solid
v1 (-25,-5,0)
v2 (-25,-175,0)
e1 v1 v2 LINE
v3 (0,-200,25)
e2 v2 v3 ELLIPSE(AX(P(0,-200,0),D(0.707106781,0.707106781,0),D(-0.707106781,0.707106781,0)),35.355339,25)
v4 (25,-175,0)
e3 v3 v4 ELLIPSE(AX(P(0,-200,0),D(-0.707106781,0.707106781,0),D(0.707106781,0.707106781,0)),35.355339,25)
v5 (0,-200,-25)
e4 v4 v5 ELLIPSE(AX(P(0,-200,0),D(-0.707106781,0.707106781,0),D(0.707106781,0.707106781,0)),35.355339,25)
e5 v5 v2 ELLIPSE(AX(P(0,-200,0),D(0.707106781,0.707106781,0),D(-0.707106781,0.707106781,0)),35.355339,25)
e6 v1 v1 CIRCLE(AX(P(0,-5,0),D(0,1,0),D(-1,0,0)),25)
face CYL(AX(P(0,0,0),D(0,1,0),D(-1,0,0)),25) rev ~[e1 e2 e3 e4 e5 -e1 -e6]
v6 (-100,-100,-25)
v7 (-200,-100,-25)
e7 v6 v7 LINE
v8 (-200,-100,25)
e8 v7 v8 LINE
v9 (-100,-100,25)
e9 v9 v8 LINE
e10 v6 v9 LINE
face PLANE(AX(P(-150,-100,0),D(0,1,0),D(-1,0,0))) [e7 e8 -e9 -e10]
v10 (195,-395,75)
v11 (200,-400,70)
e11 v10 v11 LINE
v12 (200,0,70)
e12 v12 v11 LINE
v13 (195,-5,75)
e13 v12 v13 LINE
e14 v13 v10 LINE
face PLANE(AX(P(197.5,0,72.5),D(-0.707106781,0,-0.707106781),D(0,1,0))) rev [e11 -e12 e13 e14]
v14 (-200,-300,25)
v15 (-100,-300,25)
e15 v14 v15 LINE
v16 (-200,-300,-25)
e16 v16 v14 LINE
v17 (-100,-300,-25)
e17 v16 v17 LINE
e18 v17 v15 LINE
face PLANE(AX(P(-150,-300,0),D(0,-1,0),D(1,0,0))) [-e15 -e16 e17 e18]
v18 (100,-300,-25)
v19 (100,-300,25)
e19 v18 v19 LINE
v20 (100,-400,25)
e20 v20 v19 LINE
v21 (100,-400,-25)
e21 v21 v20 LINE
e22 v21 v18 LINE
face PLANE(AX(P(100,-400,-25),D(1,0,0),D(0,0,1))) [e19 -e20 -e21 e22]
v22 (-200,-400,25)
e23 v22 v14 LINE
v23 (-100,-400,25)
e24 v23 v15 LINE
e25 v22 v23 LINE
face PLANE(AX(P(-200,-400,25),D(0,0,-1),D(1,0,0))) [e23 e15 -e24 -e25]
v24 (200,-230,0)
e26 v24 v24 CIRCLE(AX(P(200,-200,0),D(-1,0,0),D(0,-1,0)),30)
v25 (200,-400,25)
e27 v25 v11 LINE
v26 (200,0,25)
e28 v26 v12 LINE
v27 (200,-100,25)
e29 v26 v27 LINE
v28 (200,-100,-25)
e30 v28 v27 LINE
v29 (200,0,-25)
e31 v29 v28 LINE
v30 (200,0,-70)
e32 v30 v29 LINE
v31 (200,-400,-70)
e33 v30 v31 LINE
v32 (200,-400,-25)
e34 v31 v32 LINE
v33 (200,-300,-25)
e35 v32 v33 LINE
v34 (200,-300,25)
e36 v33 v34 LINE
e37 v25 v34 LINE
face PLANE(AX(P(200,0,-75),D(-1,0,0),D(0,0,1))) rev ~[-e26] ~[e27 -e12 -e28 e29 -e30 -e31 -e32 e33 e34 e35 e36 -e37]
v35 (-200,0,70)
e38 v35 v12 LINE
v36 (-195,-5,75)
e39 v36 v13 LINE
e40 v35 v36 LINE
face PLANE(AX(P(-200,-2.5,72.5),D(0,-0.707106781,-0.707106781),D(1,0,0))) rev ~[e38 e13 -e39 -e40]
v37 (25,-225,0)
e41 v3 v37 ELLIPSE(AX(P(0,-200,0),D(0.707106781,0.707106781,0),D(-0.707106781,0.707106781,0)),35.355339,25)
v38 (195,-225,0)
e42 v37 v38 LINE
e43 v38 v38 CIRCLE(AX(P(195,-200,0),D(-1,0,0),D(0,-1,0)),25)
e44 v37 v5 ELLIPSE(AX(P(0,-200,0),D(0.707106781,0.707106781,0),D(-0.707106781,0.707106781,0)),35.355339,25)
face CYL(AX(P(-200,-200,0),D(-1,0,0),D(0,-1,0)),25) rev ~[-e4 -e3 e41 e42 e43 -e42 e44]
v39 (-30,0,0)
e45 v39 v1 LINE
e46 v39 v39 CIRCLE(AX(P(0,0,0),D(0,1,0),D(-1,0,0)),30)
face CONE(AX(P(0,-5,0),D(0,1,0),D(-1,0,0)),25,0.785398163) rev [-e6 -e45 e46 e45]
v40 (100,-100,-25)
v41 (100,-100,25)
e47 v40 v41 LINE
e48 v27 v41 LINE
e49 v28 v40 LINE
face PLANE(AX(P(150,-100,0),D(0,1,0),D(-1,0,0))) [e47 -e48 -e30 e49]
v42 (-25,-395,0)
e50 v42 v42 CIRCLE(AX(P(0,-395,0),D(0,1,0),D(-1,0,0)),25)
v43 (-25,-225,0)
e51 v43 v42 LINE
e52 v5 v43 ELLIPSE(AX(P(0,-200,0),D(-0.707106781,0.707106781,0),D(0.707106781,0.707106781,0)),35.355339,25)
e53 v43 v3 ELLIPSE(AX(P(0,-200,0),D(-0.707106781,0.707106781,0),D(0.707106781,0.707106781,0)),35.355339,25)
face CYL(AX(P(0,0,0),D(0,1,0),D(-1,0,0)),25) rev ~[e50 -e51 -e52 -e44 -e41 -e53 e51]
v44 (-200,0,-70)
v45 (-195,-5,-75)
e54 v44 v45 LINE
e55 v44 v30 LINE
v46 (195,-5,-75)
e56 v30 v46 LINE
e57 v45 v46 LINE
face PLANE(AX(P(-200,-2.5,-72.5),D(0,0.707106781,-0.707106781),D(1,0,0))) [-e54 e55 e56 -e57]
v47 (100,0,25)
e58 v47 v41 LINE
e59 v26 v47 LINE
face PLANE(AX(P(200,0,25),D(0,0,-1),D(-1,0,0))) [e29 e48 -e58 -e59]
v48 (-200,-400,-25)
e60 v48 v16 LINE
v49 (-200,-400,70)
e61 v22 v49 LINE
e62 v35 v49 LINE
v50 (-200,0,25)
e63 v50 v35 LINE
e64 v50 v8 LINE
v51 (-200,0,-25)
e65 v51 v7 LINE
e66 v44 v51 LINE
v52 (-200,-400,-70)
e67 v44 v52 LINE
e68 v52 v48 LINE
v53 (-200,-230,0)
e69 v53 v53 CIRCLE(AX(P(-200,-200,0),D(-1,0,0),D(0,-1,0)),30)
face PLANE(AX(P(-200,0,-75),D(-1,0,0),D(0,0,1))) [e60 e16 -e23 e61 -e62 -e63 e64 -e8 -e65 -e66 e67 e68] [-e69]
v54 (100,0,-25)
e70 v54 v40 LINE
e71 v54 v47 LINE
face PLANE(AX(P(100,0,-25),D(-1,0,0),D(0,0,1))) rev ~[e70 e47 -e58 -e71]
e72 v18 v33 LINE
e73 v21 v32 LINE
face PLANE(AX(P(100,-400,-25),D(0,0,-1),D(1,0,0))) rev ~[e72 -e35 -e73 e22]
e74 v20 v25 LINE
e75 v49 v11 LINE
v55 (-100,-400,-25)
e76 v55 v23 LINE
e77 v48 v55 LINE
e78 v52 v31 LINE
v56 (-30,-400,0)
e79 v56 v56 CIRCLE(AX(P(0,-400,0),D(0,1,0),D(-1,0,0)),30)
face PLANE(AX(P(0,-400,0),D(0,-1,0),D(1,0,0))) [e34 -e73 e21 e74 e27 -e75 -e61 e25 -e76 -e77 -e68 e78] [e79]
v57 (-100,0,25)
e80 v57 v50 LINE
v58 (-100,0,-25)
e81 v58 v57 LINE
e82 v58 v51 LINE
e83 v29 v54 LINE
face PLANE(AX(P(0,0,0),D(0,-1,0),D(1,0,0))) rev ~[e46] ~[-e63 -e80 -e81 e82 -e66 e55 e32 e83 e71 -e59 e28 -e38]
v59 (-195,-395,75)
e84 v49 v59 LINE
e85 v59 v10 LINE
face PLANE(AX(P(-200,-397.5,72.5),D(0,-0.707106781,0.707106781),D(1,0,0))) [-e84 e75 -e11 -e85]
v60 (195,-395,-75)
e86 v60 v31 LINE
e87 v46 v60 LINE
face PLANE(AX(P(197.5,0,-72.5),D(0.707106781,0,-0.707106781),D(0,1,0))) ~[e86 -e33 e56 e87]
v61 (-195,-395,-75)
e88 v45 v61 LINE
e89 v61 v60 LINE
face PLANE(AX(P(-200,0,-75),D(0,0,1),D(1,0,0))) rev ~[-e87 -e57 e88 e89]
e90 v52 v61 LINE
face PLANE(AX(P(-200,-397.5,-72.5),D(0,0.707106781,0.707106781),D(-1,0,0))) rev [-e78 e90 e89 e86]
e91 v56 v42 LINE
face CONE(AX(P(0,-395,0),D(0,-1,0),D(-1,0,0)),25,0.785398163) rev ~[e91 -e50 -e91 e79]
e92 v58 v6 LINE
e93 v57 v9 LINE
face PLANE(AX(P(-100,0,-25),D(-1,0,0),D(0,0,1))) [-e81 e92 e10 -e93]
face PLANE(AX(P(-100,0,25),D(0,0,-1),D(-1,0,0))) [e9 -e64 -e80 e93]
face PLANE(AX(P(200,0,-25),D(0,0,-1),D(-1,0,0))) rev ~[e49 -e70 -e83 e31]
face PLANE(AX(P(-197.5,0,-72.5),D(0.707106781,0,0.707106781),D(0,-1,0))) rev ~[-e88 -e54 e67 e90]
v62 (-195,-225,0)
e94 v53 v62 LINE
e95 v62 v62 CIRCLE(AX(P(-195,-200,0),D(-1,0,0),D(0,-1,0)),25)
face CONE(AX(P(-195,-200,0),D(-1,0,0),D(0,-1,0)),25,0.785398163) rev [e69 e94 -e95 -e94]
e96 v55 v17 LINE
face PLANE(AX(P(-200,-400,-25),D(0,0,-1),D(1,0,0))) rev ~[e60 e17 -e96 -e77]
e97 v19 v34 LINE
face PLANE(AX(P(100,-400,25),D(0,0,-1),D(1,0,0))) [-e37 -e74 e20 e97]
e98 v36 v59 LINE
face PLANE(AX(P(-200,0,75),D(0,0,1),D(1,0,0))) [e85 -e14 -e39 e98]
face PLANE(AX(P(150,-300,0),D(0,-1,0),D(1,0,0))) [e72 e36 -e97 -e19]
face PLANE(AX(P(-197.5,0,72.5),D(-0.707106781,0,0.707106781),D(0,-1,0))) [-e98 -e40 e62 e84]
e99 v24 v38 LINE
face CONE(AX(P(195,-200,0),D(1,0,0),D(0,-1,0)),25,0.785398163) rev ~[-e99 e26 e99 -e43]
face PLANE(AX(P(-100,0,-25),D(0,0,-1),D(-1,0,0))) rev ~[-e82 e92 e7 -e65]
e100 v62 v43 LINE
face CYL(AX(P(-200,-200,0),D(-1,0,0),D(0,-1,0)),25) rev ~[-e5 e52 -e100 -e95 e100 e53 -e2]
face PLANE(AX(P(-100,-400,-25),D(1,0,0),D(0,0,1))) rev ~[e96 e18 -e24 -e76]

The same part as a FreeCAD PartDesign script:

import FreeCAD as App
import Part
import Sketcher

V = App.Vector


def edges_at(feature, points):
    """Names of the edges that pass closest to the given points."""
    edges = feature.Shape.Edges
    near = lambda p: min(range(len(edges)), key=lambda i: edges[i].distToShape(Part.Vertex(*p))[0])
    return sorted({f"Edge{near(p) + 1}" for p in points})


def add_polygon(sketch, points):
    """Adds a closed chain of lines whose ends are joined by coincident constraints."""
    first, n = sketch.GeometryCount, len(points)
    for a, b in zip(points, points[1:] + points[:1]):
        sketch.addGeometry(Part.LineSegment(App.Vector(*a, 0), App.Vector(*b, 0)), False)
    for i in range(n):
        sketch.addConstraint(Sketcher.Constraint("Coincident", first + i, 2, first + (i + 1) % n, 1))

doc = App.newDocument("Part")
body = doc.addObject("PartDesign::Body", "Body")

sketch1 = doc.addObject("Sketcher::SketchObject", "Sketch")
body.addObject(sketch1)
sketch1.AttachmentSupport = (doc.XZ_Plane, [""])
sketch1.MapMode = "FlatFace"
add_polygon(sketch1, [(-200, 75), (-200, -75), (200, -75), (200, 75)])
sketch1.addConstraint([
    Sketcher.Constraint("Vertical", 0),
    Sketcher.Constraint("Horizontal", 1),
    Sketcher.Constraint("Vertical", 2),
    Sketcher.Constraint("Horizontal", 3),
    Sketcher.Constraint("Symmetric", 0, 2, 2, 2, -1, 1),
    Sketcher.Constraint("DistanceX", 1, 1, 1, 2, 400.0),
    Sketcher.Constraint("DistanceY", 0, 2, 0, 1, 150.0),
])
pad1 = doc.addObject("PartDesign::Pad", "Pad")
body.addObject(pad1)
pad1.Profile = sketch1
pad1.Length = 400

sketch2 = doc.addObject("Sketcher::SketchObject", "Sketch001")
body.addObject(sketch2)
sketch2.AttachmentSupport = (doc.XZ_Plane, [""])
sketch2.MapMode = "FlatFace"
sketch2.AttachmentOffset = App.Placement(V(0, 0, 400), App.Rotation())
add_polygon(sketch2, [(100, 25), (100, -25), (200, -25), (200, 25)])
add_polygon(sketch2, [(-200, 25), (-200, -25), (-100, -25), (-100, 25)])
sketch2.addConstraint([
    Sketcher.Constraint("Vertical", 0),
    Sketcher.Constraint("Horizontal", 1),
    Sketcher.Constraint("Vertical", 2),
    Sketcher.Constraint("Horizontal", 3),
    Sketcher.Constraint("Vertical", 4),
    Sketcher.Constraint("Horizontal", 5),
    Sketcher.Constraint("Vertical", 6),
    Sketcher.Constraint("Horizontal", 7),
    Sketcher.Constraint("Symmetric", 2, 2, 4, 2, -1, 1),
    Sketcher.Constraint("Symmetric", 0, 2, 6, 2, -1, 1),
    Sketcher.Constraint("Horizontal", 1, 2, 4, 2),
    Sketcher.Constraint("DistanceX", 1, 1, 1, 2, 100.0),
    Sketcher.Constraint("DistanceY", 0, 2, 0, 1, 50.0),
    Sketcher.Constraint("DistanceX", -1, 1, 0, 2, 100.0),
])
pocket1 = doc.addObject("PartDesign::Pocket", "Pocket")
body.addObject(pocket1)
pocket1.Profile = sketch2
pocket1.Length = 100

sketch3 = doc.addObject("Sketcher::SketchObject", "Sketch002")
body.addObject(sketch3)
sketch3.AttachmentSupport = (doc.XZ_Plane, [""])
sketch3.MapMode = "FlatFace"
add_polygon(sketch3, [(-100, 25), (-100, -25), (-200, -25), (-200, 25)])
add_polygon(sketch3, [(200, 25), (200, -25), (100, -25), (100, 25)])
sketch3.addConstraint([
    Sketcher.Constraint("Vertical", 0),
    Sketcher.Constraint("Horizontal", 1),
    Sketcher.Constraint("Vertical", 2),
    Sketcher.Constraint("Horizontal", 3),
    Sketcher.Constraint("Vertical", 4),
    Sketcher.Constraint("Horizontal", 5),
    Sketcher.Constraint("Vertical", 6),
    Sketcher.Constraint("Horizontal", 7),
    Sketcher.Constraint("Symmetric", 2, 2, 4, 2, -1, 1),
    Sketcher.Constraint("Symmetric", 0, 2, 6, 2, -1, 1),
    Sketcher.Constraint("Horizontal", 1, 2, 4, 2),
    Sketcher.Constraint("DistanceX", 1, 2, 1, 1, 100.0),
    Sketcher.Constraint("DistanceY", 0, 2, 0, 1, 50.0),
    Sketcher.Constraint("DistanceX", 0, 2, -1, 1, 100.0),
])
pocket2 = doc.addObject("PartDesign::Pocket", "Pocket001")
body.addObject(pocket2)
pocket2.Profile = sketch3
pocket2.Length = 100
pocket2.Reversed = True

sketch4 = doc.addObject("Sketcher::SketchObject", "Sketch003")
body.addObject(sketch4)
sketch4.AttachmentSupport = (doc.XZ_Plane, [""])
sketch4.MapMode = "FlatFace"
sketch4.addGeometry(Part.Circle(V(0, 0, 0), V(0, 0, 1), 25), False)
sketch4.addConstraint([
    Sketcher.Constraint("Coincident", 0, 3, -1, 1),
    Sketcher.Constraint("Diameter", 0, 50.0),
])
pocket3 = doc.addObject("PartDesign::Pocket", "Pocket002")
body.addObject(pocket3)
pocket3.Profile = sketch4
pocket3.Type = "ThroughAll"
pocket3.Reversed = True

sketch5 = doc.addObject("Sketcher::SketchObject", "Sketch004")
body.addObject(sketch5)
sketch5.AttachmentSupport = (doc.YZ_Plane, [""])
sketch5.MapMode = "FlatFace"
sketch5.AttachmentOffset = App.Placement(V(0, 0, -200), App.Rotation())
sketch5.addGeometry(Part.Circle(V(-200, 0, 0), V(0, 0, 1), 25), False)
sketch5.addConstraint([
    Sketcher.Constraint("PointOnObject", 0, 3, -1),
    Sketcher.Constraint("Diameter", 0, 50.0),
    Sketcher.Constraint("DistanceX", 0, 3, -1, 1, 200.0),
])
pocket4 = doc.addObject("PartDesign::Pocket", "Pocket003")
body.addObject(pocket4)
pocket4.Profile = sketch5
pocket4.Type = "ThroughAll"
pocket4.Reversed = True
doc.recompute()

chamfer = doc.addObject("PartDesign::Chamfer", "Chamfer")
body.addObject(chamfer)
chamfer.Base = (pocket4, edges_at(pocket4, [
    (-200, -200, 75),
    (-200, -200, -75),
    (0, 0, 75),
    (0, 0, -75),
    (-200, -175, 0),
    (25, 0, 0),
    (200, -200, -75),
    (200, -200, 75),
    (200, -175, 0),
    (0, -400, -75),
    (0, -400, 75),
    (25, -400, 0),
]))
chamfer.Size = 5

doc.recompute()
